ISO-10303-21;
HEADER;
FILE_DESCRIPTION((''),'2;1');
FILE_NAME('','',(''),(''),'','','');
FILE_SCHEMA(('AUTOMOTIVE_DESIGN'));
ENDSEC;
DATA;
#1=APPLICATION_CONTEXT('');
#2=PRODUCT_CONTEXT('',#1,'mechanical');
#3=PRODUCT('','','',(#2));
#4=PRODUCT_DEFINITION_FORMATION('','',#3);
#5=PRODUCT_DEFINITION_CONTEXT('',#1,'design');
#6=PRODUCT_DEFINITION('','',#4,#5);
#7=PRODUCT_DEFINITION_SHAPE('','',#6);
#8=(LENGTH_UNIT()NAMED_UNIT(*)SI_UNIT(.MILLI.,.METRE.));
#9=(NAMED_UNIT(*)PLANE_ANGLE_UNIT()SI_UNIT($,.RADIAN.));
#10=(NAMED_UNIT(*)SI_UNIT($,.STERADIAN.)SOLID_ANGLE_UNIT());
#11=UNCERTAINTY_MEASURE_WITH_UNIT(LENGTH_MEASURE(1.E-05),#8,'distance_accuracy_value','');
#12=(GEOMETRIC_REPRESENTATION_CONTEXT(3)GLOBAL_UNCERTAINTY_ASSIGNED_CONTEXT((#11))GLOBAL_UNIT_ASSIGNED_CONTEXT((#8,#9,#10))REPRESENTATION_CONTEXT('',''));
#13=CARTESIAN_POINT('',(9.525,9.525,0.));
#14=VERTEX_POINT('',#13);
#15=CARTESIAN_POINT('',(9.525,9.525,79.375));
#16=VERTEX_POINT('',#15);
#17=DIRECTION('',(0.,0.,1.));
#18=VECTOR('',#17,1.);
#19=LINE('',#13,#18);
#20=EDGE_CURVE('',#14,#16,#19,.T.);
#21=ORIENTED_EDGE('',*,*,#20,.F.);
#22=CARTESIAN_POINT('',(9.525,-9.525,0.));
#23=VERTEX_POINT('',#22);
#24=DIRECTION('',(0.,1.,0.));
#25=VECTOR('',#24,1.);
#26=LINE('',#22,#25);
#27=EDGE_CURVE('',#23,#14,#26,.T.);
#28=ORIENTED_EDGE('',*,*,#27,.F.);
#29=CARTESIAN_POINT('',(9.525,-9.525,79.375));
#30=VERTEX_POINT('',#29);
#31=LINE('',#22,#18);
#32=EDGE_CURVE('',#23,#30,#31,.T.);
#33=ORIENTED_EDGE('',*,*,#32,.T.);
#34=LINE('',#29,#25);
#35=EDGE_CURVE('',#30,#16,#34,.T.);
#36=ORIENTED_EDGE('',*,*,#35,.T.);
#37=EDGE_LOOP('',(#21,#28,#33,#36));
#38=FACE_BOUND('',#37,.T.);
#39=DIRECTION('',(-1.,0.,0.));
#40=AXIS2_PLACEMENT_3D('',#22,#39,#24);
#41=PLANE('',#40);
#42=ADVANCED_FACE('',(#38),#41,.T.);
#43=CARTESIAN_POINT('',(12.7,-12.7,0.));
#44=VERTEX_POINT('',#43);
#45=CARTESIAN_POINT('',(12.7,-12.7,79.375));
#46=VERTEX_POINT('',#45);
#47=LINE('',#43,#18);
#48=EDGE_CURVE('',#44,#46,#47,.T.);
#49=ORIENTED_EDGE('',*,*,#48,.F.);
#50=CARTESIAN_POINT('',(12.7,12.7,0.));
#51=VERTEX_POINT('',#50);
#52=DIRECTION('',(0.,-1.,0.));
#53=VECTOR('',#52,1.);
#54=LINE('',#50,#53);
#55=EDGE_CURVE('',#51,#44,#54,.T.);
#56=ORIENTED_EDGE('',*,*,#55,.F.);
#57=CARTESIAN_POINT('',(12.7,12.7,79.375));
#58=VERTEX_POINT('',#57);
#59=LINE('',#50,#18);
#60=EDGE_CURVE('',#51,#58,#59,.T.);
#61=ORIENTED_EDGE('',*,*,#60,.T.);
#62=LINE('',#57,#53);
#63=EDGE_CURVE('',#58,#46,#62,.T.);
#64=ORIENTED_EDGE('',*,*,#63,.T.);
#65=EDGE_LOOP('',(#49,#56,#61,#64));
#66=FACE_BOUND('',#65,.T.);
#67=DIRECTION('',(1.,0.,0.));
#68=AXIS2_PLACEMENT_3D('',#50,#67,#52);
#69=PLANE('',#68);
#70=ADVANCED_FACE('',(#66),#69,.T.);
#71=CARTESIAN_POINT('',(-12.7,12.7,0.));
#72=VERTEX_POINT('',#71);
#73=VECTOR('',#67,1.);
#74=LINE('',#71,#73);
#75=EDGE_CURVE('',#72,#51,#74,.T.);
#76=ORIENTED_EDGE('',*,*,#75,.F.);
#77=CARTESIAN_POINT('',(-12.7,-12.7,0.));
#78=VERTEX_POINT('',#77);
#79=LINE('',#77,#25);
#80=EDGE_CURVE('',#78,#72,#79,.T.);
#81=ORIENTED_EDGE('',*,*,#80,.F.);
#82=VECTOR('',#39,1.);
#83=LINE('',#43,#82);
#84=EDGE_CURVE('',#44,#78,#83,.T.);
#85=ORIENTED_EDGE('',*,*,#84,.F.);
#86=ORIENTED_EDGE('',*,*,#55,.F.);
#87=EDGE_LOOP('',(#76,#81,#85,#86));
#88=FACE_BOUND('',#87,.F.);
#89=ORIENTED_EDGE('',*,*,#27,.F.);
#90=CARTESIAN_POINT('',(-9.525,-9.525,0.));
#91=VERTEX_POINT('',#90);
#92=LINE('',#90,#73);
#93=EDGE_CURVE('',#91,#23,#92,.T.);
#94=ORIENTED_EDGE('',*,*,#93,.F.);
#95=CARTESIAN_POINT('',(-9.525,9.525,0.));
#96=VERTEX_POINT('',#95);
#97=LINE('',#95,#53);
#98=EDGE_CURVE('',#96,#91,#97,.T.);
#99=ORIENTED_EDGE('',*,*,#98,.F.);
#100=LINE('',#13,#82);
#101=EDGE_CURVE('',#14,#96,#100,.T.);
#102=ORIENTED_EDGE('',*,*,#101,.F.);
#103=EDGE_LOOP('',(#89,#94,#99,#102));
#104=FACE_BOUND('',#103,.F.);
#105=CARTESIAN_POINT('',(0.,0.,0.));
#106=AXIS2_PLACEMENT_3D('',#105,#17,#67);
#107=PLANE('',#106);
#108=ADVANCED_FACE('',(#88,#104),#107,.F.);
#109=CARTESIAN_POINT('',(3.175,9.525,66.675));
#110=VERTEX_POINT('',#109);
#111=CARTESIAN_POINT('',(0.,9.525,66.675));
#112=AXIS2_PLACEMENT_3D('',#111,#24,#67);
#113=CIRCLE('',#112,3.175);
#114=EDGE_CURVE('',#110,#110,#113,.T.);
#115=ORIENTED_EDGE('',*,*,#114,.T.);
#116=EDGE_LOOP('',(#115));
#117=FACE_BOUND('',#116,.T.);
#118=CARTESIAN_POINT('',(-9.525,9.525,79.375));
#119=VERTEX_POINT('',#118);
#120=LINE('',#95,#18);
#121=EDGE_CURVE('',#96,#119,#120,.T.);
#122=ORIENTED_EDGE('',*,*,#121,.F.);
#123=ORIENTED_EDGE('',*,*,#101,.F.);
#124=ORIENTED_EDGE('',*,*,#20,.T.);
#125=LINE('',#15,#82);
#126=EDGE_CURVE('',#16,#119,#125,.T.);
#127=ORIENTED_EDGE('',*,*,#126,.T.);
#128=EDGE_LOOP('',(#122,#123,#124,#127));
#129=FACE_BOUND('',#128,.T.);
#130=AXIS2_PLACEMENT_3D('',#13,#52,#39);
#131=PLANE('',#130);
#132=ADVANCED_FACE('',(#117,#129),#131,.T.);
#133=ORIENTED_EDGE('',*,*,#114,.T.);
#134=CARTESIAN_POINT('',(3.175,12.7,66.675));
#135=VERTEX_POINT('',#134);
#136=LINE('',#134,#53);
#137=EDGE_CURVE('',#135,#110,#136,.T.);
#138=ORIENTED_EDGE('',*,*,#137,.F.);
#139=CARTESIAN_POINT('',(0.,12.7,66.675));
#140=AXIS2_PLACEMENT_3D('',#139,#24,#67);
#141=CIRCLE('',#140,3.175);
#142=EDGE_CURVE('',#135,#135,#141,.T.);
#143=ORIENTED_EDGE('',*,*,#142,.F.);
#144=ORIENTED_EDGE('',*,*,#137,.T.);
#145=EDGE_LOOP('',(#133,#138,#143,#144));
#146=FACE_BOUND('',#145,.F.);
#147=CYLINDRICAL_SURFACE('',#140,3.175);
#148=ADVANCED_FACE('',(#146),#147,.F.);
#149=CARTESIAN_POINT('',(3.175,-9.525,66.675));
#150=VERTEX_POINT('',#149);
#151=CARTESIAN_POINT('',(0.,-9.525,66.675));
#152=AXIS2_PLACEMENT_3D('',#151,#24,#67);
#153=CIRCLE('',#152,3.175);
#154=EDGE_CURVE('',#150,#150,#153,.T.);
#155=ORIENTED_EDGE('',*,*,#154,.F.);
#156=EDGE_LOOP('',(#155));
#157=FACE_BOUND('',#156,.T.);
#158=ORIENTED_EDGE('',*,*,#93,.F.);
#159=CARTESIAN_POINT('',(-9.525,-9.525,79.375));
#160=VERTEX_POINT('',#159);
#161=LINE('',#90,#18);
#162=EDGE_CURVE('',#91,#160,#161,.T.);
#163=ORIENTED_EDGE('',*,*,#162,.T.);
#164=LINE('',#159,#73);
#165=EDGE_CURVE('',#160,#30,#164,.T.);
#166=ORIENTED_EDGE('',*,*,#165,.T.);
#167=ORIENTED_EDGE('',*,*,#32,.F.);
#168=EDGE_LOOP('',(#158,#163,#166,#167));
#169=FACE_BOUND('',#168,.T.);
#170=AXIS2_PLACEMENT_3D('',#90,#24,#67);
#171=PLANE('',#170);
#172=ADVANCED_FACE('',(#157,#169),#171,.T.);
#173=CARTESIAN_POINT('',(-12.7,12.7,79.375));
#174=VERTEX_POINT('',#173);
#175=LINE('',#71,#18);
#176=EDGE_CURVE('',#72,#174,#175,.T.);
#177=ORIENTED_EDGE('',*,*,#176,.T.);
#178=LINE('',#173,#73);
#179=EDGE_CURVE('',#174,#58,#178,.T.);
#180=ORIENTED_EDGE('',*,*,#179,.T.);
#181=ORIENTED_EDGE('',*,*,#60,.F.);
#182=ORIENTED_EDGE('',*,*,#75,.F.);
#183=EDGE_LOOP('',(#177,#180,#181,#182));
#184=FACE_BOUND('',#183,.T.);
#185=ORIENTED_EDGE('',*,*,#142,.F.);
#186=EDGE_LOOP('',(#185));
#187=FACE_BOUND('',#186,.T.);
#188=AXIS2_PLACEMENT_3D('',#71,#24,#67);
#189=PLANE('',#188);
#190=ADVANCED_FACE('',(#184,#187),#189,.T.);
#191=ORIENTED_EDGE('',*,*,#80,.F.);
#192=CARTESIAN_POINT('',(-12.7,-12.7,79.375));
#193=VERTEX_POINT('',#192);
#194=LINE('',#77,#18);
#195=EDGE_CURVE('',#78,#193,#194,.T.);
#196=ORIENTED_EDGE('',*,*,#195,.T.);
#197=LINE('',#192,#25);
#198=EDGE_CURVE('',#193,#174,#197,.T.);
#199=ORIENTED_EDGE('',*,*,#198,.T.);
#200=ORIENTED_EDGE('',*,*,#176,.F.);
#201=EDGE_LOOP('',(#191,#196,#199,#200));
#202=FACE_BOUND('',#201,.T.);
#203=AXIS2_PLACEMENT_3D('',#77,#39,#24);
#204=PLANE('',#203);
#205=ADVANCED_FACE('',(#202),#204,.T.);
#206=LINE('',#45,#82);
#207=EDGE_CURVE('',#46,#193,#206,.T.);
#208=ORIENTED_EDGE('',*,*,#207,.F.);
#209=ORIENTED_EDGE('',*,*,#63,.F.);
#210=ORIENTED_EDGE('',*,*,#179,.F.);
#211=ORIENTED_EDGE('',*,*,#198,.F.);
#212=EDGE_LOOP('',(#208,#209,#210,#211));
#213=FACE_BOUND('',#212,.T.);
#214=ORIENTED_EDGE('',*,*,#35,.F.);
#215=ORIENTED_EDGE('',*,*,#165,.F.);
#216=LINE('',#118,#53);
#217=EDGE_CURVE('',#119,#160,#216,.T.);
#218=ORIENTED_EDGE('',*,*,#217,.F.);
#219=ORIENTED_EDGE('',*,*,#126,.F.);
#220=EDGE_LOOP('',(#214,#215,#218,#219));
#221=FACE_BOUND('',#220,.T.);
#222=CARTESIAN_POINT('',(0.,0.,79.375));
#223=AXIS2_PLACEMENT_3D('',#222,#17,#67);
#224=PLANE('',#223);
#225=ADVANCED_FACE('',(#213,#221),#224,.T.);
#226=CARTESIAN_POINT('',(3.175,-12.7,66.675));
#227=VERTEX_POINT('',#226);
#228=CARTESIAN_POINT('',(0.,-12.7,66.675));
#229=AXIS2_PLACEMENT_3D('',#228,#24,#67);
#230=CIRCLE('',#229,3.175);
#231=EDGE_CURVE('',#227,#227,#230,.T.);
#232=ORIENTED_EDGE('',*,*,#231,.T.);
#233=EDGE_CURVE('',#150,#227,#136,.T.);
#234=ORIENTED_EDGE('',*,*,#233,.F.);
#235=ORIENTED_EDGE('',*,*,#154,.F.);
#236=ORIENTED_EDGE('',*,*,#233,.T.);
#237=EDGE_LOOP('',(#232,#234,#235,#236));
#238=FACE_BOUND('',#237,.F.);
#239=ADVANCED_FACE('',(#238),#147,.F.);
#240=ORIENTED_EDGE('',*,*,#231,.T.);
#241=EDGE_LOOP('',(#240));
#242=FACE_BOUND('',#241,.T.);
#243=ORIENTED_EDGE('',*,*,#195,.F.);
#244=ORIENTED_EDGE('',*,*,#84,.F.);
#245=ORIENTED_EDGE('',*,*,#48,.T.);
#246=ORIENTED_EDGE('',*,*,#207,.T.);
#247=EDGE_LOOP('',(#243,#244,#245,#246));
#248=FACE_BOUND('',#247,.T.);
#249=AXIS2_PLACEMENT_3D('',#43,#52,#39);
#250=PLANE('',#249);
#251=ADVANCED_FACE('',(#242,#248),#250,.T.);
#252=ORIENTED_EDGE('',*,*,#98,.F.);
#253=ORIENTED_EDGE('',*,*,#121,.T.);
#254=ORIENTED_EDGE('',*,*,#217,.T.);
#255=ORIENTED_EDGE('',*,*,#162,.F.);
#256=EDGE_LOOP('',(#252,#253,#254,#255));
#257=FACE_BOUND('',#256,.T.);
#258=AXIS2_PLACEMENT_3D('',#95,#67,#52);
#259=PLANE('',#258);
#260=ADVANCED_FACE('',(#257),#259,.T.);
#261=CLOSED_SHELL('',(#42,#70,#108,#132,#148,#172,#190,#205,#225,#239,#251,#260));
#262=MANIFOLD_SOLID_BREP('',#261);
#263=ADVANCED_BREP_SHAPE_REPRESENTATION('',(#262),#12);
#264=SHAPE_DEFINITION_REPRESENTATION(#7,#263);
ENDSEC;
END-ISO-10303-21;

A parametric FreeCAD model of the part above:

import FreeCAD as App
import Part
import Sketcher

V = App.Vector
Q = App.Units.Quantity


def add_polygon(sketch, points):
    """Adds a closed chain of lines whose ends are joined by coincident constraints."""
    first, n = sketch.GeometryCount, len(points)
    for a, b in zip(points, points[1:] + points[:1]):
        sketch.addGeometry(Part.LineSegment(App.Vector(*a, 0), App.Vector(*b, 0)), False)
    for i in range(n):
        sketch.addConstraint(Sketcher.Constraint("Coincident", first + i, 2, first + (i + 1) % n, 1))

doc = App.newDocument("Part")
body = doc.addObject("PartDesign::Body", "Body")

sketch1 = doc.addObject("Sketcher::SketchObject", "Sketch")
body.addObject(sketch1)
sketch1.AttachmentSupport = (doc.XY_Plane, [""])
sketch1.MapMode = "FlatFace"
add_polygon(sketch1, [(13, 13), (-13, 13), (-13, -13), (13, -13)])
add_polygon(sketch1, [(10, -10), (-10, -10), (-10, 10), (10, 10)])
sketch1.addConstraint([
    Sketcher.Constraint("Horizontal", 0),
    Sketcher.Constraint("Vertical", 1),
    Sketcher.Constraint("Horizontal", 2),
    Sketcher.Constraint("Vertical", 3),
    Sketcher.Constraint("Horizontal", 4),
    Sketcher.Constraint("Vertical", 5),
    Sketcher.Constraint("Horizontal", 6),
    Sketcher.Constraint("Vertical", 7),
    Sketcher.Constraint("Symmetric", 0, 2, 2, 2, -1, 1),
    Sketcher.Constraint("Symmetric", 4, 2, 6, 2, -1, 1),
    Sketcher.Constraint("Equal", 2, 1),
    Sketcher.Constraint("Equal", 6, 5),
    Sketcher.Constraint("DistanceX", 0, 2, 0, 1, Q("1 in")),
    Sketcher.Constraint("DistanceX", 1, 2, 4, 2, Q("0.125 in")),
])
pad1 = doc.addObject("PartDesign::Pad", "Pad")
body.addObject(pad1)
pad1.Profile = sketch1
pad1.Length = Q("3.125 in")

sketch2 = doc.addObject("Sketcher::SketchObject", "Sketch001")
body.addObject(sketch2)
sketch2.AttachmentSupport = (doc.XZ_Plane, [""])
sketch2.MapMode = "FlatFace"
sketch2.AttachmentOffset = App.Placement(V(0, 0, -0.5 * 25.4), App.Rotation())
sketch2.addGeometry(Part.Circle(V(0, 66.7, 0), V(0, 0, 1), 3.2), False)
sketch2.addConstraint([
    Sketcher.Constraint("PointOnObject", 0, 3, -2),
    Sketcher.Constraint("Diameter", 0, Q("0.25 in")),
    Sketcher.Constraint("DistanceY", -1, 1, 0, 3, Q("2.625 in")),
])
pocket1 = doc.addObject("PartDesign::Pocket", "Pocket")
body.addObject(pocket1)
pocket1.Profile = sketch2
pocket1.Length = Q("1 in")
pocket1.Reversed = True

doc.recompute()
